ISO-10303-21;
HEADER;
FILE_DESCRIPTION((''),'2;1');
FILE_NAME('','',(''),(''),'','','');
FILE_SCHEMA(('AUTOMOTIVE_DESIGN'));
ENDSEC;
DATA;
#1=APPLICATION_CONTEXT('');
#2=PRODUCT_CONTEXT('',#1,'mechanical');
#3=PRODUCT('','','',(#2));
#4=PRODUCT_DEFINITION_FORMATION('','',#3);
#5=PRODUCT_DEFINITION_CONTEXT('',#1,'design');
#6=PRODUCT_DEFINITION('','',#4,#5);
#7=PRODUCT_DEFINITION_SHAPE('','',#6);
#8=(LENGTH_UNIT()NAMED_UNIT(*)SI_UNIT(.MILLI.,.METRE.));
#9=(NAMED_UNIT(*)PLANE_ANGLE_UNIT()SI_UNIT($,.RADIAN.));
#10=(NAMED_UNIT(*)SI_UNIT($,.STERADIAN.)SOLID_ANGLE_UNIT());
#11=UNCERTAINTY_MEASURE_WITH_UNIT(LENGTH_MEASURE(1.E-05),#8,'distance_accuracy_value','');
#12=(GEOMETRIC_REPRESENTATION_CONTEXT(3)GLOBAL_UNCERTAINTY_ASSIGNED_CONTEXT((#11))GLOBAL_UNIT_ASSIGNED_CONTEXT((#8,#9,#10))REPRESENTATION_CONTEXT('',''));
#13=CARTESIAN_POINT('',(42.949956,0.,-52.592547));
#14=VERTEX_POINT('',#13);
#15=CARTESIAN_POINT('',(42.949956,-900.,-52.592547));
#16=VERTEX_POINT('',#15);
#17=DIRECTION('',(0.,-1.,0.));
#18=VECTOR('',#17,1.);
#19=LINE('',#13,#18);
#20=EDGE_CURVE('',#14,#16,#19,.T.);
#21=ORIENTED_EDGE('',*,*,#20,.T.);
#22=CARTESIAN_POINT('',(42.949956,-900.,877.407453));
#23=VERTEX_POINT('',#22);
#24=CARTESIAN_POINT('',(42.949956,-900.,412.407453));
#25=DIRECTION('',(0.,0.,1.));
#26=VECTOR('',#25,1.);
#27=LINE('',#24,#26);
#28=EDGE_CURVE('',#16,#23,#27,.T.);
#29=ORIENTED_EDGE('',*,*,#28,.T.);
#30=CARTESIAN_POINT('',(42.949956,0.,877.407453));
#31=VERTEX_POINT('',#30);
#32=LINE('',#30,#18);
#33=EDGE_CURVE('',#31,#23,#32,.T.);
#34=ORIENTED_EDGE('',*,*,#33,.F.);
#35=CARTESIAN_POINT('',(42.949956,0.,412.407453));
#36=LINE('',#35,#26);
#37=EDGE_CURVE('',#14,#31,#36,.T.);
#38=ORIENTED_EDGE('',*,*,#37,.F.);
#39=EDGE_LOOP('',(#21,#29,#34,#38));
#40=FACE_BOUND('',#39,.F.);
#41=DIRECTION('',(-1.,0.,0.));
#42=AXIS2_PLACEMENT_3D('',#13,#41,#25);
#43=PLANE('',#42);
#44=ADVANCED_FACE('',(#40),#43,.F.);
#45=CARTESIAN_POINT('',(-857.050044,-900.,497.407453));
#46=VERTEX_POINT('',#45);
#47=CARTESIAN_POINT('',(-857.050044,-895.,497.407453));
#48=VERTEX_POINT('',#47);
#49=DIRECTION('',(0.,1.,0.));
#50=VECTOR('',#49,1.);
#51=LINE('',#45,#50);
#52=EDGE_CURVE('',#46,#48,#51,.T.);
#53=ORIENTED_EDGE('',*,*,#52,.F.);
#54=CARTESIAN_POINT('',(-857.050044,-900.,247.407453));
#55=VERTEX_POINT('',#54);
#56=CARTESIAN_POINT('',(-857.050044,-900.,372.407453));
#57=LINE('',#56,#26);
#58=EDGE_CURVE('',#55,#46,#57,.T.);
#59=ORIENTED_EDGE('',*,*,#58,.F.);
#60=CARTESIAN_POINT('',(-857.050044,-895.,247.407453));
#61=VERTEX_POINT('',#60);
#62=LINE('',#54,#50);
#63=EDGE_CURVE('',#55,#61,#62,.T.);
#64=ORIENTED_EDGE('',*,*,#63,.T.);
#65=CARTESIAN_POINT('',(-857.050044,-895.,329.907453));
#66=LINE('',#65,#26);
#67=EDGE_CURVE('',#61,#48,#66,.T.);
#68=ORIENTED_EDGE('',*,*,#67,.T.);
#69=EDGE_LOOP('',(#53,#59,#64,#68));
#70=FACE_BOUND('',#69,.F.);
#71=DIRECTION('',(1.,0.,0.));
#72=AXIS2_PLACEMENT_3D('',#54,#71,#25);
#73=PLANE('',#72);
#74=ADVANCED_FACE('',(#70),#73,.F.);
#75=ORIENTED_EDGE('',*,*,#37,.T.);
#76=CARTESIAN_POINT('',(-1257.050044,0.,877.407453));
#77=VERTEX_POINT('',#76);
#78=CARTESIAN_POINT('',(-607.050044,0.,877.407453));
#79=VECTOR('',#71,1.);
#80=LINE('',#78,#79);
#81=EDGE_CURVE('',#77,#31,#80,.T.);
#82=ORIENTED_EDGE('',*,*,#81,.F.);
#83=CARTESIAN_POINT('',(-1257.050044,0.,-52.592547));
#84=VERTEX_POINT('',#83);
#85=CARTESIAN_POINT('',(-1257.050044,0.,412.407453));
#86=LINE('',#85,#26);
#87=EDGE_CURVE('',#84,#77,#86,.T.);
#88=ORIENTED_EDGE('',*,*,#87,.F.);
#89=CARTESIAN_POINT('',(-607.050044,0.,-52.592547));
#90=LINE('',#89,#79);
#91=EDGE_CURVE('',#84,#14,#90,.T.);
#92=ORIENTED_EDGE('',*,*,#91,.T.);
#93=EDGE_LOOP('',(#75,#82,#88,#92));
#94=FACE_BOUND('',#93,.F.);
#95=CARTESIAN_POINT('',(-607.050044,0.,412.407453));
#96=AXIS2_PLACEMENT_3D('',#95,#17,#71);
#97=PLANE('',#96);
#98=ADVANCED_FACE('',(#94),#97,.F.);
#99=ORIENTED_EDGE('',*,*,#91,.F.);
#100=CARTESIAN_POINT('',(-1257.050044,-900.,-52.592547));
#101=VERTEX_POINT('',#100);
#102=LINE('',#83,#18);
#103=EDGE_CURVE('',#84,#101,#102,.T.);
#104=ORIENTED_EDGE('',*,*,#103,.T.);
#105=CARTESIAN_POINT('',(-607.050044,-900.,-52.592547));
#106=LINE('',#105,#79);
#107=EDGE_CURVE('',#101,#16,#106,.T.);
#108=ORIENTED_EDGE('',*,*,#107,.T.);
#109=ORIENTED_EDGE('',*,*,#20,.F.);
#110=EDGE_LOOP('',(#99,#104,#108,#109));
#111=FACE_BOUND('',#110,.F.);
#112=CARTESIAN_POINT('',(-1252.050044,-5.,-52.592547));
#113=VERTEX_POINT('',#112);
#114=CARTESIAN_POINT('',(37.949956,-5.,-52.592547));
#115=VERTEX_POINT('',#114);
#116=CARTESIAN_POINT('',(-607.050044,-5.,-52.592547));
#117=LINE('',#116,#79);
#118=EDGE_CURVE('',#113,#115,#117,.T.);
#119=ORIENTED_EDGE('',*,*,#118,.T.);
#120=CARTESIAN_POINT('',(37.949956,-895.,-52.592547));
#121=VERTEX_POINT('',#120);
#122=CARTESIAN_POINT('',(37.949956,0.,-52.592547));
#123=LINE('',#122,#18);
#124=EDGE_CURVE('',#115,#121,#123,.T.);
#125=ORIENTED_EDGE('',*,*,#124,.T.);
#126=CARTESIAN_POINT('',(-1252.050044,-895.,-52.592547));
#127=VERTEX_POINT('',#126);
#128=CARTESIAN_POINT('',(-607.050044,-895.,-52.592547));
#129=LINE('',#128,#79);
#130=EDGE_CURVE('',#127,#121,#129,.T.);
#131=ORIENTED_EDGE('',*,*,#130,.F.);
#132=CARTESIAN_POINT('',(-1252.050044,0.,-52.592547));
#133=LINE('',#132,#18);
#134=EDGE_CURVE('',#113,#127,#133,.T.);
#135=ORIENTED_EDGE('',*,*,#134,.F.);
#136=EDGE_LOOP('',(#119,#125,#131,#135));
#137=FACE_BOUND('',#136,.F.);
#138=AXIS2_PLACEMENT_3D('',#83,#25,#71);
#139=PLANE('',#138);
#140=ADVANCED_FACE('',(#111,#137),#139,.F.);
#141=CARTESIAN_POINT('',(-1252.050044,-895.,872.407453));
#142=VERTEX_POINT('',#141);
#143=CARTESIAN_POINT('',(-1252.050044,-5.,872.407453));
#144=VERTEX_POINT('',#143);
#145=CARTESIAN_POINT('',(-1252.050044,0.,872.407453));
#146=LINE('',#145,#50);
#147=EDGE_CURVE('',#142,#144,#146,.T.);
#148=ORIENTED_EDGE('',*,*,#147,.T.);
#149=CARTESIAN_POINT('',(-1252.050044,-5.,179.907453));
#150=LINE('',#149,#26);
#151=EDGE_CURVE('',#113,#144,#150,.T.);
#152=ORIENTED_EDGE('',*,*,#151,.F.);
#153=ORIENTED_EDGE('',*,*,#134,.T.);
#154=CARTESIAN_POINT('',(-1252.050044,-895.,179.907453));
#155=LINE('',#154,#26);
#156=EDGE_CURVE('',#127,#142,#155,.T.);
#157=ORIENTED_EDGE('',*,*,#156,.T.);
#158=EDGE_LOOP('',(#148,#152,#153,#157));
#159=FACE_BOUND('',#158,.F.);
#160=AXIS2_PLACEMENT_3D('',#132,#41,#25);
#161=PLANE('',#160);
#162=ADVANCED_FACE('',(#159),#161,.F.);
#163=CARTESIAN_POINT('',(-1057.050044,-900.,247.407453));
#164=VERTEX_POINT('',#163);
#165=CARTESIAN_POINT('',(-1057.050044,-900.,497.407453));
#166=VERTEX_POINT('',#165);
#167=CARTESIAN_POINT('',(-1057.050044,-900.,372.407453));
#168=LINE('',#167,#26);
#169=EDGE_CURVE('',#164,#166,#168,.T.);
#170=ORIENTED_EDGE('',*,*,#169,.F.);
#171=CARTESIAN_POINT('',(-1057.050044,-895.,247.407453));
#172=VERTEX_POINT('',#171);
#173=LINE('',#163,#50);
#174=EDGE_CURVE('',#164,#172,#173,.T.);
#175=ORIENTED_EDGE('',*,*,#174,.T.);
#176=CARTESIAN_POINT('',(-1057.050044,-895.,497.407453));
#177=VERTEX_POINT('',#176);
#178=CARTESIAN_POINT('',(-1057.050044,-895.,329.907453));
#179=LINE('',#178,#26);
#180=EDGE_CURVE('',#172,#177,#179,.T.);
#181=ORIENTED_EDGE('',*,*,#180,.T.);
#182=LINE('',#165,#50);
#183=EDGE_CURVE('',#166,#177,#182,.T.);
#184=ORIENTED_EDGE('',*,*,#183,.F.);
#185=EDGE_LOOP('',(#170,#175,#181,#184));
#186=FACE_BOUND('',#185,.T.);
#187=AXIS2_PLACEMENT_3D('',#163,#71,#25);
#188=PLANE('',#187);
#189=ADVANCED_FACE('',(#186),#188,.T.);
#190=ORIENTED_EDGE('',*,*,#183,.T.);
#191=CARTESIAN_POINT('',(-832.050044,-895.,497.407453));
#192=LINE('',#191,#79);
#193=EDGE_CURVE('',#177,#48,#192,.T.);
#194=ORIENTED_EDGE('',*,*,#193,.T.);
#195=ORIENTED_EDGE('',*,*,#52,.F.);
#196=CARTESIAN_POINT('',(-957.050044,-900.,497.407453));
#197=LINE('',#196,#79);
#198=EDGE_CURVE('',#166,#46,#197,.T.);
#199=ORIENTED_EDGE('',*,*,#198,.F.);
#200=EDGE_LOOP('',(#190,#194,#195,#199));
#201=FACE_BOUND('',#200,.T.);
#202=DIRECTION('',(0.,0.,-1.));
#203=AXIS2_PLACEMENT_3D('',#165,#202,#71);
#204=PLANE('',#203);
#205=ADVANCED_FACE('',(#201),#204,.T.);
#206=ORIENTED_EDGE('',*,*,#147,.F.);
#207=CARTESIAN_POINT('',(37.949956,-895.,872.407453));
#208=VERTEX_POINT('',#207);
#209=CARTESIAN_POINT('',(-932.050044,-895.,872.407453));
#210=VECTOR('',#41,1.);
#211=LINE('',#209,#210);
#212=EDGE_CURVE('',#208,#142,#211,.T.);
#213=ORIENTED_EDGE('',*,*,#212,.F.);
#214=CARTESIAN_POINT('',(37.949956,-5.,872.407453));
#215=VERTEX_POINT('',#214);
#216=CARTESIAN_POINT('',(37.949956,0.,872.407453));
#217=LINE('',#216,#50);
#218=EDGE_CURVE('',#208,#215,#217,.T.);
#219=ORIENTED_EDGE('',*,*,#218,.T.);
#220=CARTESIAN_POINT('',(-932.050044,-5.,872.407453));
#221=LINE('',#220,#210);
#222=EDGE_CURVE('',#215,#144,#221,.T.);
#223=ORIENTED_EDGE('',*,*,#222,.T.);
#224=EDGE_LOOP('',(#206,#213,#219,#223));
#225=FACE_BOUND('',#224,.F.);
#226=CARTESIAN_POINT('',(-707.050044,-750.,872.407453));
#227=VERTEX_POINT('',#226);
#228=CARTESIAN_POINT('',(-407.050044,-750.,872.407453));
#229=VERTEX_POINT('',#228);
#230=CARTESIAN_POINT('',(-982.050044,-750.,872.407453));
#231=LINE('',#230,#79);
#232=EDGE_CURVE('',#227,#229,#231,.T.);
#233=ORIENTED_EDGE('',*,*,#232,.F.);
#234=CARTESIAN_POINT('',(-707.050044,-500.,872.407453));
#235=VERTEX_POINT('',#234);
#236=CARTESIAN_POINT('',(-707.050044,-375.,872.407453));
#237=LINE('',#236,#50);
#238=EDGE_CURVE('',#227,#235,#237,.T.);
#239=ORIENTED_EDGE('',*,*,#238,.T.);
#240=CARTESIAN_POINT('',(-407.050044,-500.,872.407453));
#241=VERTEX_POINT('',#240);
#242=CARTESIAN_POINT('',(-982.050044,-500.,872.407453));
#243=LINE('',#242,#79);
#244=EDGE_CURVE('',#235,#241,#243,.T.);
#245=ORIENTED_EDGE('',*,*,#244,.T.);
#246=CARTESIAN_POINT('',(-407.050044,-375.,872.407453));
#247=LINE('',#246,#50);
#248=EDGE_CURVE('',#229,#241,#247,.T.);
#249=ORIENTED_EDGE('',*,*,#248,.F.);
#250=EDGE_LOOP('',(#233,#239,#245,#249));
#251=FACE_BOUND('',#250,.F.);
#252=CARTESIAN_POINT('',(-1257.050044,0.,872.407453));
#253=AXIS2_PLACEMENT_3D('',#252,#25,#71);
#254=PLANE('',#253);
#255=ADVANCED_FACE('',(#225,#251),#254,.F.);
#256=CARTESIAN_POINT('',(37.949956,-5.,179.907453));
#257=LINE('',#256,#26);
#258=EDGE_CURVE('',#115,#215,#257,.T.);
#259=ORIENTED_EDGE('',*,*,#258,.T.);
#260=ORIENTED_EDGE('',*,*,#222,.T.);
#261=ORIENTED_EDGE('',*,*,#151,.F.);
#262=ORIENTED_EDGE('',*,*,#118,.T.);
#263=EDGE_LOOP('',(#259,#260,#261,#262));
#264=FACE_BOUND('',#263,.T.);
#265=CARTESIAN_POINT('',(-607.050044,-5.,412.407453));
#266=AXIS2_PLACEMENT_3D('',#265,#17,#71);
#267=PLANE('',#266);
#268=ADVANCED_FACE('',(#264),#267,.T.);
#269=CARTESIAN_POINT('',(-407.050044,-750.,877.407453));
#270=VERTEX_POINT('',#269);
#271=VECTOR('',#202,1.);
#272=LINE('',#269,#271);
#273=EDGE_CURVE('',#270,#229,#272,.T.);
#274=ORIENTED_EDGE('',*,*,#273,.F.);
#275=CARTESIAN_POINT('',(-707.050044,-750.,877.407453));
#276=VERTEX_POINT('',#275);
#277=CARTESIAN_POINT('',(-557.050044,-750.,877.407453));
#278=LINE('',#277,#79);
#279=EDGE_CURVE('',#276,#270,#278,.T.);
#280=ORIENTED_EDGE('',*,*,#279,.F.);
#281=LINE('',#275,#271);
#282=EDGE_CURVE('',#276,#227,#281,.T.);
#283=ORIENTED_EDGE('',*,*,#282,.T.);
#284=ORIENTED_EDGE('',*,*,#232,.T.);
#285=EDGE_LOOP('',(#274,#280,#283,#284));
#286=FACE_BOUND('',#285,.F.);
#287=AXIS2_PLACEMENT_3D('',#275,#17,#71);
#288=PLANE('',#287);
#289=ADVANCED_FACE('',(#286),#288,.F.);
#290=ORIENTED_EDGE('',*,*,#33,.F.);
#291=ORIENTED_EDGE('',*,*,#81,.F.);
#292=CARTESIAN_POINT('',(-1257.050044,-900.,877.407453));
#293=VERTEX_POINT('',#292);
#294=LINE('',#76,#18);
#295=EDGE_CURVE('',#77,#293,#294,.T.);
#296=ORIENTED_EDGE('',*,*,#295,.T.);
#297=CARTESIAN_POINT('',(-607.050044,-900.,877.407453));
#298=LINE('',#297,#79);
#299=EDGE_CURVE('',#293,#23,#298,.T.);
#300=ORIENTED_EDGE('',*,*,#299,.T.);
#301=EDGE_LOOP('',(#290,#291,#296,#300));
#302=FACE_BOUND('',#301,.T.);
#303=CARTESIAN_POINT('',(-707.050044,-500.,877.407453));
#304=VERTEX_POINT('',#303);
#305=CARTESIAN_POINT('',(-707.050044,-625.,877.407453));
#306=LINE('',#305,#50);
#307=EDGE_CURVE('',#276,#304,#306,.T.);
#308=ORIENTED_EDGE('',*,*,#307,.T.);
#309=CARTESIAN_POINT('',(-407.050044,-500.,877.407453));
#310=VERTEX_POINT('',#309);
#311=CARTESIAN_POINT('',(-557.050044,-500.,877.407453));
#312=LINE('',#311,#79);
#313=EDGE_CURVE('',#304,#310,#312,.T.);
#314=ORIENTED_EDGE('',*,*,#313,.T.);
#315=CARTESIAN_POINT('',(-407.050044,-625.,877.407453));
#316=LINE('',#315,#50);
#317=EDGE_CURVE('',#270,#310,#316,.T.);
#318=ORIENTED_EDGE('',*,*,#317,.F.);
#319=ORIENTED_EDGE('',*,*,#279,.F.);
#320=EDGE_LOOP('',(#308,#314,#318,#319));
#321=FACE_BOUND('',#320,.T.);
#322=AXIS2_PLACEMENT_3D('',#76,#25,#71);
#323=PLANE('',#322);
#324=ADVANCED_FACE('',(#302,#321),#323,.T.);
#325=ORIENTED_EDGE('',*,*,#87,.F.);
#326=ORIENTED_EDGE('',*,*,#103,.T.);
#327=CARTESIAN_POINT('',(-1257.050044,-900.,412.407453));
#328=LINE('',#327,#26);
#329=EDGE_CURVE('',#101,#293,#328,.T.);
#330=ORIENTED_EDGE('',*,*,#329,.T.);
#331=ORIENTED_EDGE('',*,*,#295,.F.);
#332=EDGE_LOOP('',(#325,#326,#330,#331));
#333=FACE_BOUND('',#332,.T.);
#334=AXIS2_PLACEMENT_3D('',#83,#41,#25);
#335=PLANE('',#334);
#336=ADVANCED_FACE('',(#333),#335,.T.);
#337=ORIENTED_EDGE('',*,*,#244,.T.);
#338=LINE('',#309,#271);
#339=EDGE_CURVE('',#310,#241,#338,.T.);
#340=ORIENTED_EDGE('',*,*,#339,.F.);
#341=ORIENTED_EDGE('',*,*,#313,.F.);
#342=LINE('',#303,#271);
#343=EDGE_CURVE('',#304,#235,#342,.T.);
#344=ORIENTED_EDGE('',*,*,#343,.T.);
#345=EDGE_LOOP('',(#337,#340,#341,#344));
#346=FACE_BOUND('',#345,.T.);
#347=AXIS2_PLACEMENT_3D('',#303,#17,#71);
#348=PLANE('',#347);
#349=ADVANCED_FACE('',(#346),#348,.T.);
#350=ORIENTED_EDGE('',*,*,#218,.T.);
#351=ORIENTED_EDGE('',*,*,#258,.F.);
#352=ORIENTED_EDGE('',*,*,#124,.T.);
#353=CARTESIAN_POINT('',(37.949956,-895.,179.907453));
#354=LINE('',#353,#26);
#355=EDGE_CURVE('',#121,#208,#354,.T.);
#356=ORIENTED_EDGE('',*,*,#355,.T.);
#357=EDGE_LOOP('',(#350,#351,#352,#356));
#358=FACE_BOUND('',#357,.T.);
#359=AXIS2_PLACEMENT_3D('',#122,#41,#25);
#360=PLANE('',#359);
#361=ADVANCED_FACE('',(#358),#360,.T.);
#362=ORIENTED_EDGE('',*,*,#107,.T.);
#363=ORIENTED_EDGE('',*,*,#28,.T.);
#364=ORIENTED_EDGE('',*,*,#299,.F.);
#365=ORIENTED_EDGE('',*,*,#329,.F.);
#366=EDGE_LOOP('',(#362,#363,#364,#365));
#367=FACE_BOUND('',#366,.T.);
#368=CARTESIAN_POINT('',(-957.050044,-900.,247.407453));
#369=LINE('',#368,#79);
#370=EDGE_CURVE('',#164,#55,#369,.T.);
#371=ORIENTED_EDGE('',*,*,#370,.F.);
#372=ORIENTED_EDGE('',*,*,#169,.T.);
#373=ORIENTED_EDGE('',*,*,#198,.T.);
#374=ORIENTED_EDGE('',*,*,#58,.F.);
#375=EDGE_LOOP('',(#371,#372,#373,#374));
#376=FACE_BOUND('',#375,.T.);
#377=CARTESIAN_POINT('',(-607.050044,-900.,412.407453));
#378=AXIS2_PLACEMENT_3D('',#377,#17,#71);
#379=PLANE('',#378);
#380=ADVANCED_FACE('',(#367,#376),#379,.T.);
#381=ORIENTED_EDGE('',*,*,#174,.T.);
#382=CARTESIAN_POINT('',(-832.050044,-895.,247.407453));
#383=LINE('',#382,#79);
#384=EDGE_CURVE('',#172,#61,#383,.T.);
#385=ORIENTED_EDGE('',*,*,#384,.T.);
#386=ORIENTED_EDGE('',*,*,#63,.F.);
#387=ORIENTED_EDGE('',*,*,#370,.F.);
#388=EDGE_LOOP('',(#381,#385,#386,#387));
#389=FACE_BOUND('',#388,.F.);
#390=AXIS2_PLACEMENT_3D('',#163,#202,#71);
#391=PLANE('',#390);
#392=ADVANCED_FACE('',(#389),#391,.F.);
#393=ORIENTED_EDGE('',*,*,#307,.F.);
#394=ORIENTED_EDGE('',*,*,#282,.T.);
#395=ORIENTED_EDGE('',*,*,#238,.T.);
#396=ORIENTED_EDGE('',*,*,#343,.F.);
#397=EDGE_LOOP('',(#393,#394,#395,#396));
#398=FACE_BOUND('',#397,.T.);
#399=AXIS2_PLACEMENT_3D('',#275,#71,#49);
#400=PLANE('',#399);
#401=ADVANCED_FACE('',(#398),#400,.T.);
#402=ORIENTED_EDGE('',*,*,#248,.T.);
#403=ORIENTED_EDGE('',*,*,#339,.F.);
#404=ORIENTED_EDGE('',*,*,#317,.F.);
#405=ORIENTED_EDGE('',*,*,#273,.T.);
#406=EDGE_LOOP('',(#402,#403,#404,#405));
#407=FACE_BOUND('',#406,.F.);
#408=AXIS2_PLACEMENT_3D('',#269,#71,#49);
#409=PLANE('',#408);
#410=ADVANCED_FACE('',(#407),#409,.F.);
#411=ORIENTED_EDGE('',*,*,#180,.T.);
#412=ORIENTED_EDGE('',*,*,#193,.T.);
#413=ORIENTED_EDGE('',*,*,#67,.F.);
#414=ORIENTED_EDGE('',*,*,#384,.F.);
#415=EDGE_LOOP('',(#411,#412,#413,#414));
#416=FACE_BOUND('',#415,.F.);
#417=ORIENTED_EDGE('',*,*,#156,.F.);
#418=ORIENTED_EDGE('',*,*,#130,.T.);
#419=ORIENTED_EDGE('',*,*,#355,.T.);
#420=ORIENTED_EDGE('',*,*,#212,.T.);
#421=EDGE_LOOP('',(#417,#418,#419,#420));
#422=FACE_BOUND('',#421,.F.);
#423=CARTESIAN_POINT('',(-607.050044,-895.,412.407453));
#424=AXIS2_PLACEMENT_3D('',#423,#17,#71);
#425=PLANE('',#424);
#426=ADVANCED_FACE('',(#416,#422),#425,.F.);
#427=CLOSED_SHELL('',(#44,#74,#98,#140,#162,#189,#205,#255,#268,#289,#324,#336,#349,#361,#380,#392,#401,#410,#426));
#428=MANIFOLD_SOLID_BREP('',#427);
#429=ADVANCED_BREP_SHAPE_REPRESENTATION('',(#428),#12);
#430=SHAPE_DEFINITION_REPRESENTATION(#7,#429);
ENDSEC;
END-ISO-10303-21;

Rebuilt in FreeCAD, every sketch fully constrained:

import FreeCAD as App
import Part
import Sketcher
from FreeCAD import Vector
Q = App.Units.Quantity


def faces_at(feature, points):
    """Names of the faces that lie closest to the given points."""
    faces = feature.Shape.Faces
    near = lambda p: min(range(len(faces)), key=lambda i: faces[i].distToShape(Part.Vertex(*p))[0])
    return sorted({f"Face{near(p) + 1}" for p in points})


def add_polygon(sketch, points):
    """Adds a closed chain of lines whose ends are joined by coincident constraints."""
    first, n = sketch.GeometryCount, len(points)
    for a, b in zip(points, points[1:] + points[:1]):
        sketch.addGeometry(Part.LineSegment(App.Vector(*a, 0), App.Vector(*b, 0)), False)
    for i in range(n):
        sketch.addConstraint(Sketcher.Constraint("Coincident", first + i, 2, first + (i + 1) % n, 1))

doc = App.newDocument("Part")
params = doc.addObject("Spreadsheet::Sheet", "Params")
for row, (alias, value) in enumerate([
    ("sketch1_width", "1300 mm"),
    ("sketch1_height", "930 mm"),
    ("pad1_length", "900 mm"),
    ("thickness_wall", "5 mm"),
    ("sketch2_width", "200 mm"),
    ("sketch2_height", "250 mm"),
    ("pocket1_length", "25 mm"),
    ("sketch3_width", "300 mm"),
    ("sketch3_height", "250 mm"),
    ("pocket2_length", "25 mm"),
], start=1):
    params.set(f"A{row}", alias)
    params.set(f"B{row}", "=" + value)
    params.setAlias(f"B{row}", alias)

body = doc.addObject("PartDesign::Body", "Body")

# Sketch on XZ plane
sketch1 = doc.addObject("Sketcher::SketchObject", "Sketch")
body.addObject(sketch1)
sketch1.AttachmentSupport = (doc.XZ_Plane, [""])
sketch1.MapMode = "FlatFace"
add_polygon(sketch1, [(-1257, 877), (-1257, -53), (43, -53), (43, 877)])  # lines 0-3
sketch1.addConstraint([
    Sketcher.Constraint("Vertical", 0),
    Sketcher.Constraint("Horizontal", 1),
    Sketcher.Constraint("Vertical", 2),
    Sketcher.Constraint("Horizontal", 3),
    Sketcher.Constraint("DistanceX", 1, 1, 1, 2, Q("1300 mm")),
    Sketcher.Constraint("DistanceY", 0, 2, 0, 1, Q("930 mm")),
    Sketcher.Constraint("DistanceX", 0, 2, -1, 1, Q("1257.050044 mm")),
    Sketcher.Constraint("DistanceY", 0, 2, -1, 1, Q("52.592547 mm")),
])
sketch1.setExpression("Constraints[8]", "Params.sketch1_width")
sketch1.setExpression("Constraints[9]", "Params.sketch1_height")
pad1 = doc.addObject("PartDesign::Pad", "Pad")
body.addObject(pad1)
pad1.Profile = sketch1
pad1.setExpression("Length", "Params.pad1_length")
doc.recompute()

thickness = doc.addObject("PartDesign::Thickness", "Thickness")
body.addObject(thickness)
thickness.Base = (pad1, faces_at(pad1, [(-607.05, -450, -52.593)]))
thickness.setExpression("Value", "Params.thickness_wall")
thickness.Reversed = True
thickness.Join = "Arc"

# Sketch on XZ plane
sketch2 = doc.addObject("Sketcher::SketchObject", "Sketch001")
body.addObject(sketch2)
sketch2.AttachmentSupport = (doc.XZ_Plane, [""])
sketch2.MapMode = "FlatFace"
sketch2.AttachmentOffset = App.Placement(Vector(0, 0, 900), App.Rotation())
add_polygon(sketch2, [(-1057, 497), (-1057, 247), (-857, 247), (-857, 497)])  # lines 0-3
sketch2.addConstraint([
    Sketcher.Constraint("Vertical", 0),
    Sketcher.Constraint("Horizontal", 1),
    Sketcher.Constraint("Vertical", 2),
    Sketcher.Constraint("Horizontal", 3),
    Sketcher.Constraint("DistanceX", 1, 1, 1, 2, Q("200 mm")),
    Sketcher.Constraint("DistanceY", 0, 2, 0, 1, Q("250 mm")),
    Sketcher.Constraint("DistanceX", 0, 2, -1, 1, Q("1057.050044 mm")),
    Sketcher.Constraint("DistanceY", -1, 1, 0, 2, Q("247.407453 mm")),
])
sketch2.setExpression("Constraints[8]", "Params.sketch2_width")
sketch2.setExpression("Constraints[9]", "Params.sketch2_height")
pocket1 = doc.addObject("PartDesign::Pocket", "Pocket")
body.addObject(pocket1)
pocket1.Profile = sketch2
pocket1.setExpression("Length", "Params.pocket1_length")

# Sketch on XY plane
sketch3 = doc.addObject("Sketcher::SketchObject", "Sketch002")
body.addObject(sketch3)
sketch3.AttachmentSupport = (doc.XY_Plane, [""])
sketch3.MapMode = "FlatFace"
sketch3.AttachmentOffset = App.Placement(Vector(0, 0, 877.407453), App.Rotation())
add_polygon(sketch3, [(-707, -500), (-707, -750), (-407, -750), (-407, -500)])  # lines 0-3
sketch3.addConstraint([
    Sketcher.Constraint("Vertical", 0),
    Sketcher.Constraint("Horizontal", 1),
    Sketcher.Constraint("Vertical", 2),
    Sketcher.Constraint("Horizontal", 3),
    Sketcher.Constraint("DistanceX", 1, 1, 1, 2, Q("300 mm")),
    Sketcher.Constraint("DistanceY", 0, 2, 0, 1, Q("250 mm")),
    Sketcher.Constraint("DistanceY", 0, 2, -1, 1, Q("750 mm")),
    Sketcher.Constraint("DistanceX", 0, 2, -1, 1, Q("707.050044 mm")),
])
sketch3.setExpression("Constraints[8]", "Params.sketch3_width")
sketch3.setExpression("Constraints[9]", "Params.sketch3_height")
pocket2 = doc.addObject("PartDesign::Pocket", "Pocket001")
body.addObject(pocket2)
pocket2.Profile = sketch3
pocket2.setExpression("Length", "Params.pocket2_length")

doc.recompute()
